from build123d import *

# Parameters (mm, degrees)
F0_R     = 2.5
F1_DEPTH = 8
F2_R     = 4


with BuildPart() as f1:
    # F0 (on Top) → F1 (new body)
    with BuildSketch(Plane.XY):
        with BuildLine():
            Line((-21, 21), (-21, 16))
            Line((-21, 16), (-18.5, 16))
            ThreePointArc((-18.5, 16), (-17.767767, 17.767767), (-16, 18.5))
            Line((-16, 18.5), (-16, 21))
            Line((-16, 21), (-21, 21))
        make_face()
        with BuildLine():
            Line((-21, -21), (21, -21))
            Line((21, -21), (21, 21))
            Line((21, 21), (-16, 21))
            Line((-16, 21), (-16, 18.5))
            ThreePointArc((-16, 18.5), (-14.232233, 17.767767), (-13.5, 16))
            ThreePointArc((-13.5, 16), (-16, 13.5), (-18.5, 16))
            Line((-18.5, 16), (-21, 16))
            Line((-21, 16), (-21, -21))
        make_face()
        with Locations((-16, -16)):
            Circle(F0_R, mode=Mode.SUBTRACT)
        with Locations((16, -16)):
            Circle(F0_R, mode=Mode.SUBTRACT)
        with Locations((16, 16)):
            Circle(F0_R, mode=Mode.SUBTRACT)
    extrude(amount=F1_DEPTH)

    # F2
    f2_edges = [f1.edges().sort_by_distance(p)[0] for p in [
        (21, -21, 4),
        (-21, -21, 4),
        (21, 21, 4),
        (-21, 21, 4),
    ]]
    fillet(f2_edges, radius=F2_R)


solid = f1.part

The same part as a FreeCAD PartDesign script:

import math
import FreeCAD as App
import Part
import Sketcher
Q = App.Units.Quantity


def edges_at(feature, points):
    """Names of the edges that pass closest to the given points."""
    edges = feature.Shape.Edges
    near = lambda p: min(range(len(edges)), key=lambda i: edges[i].distToShape(Part.Vertex(*p))[0])
    return sorted({f"Edge{near(p) + 1}" for p in points})


def add_polygon(sketch, points):
    """Adds a closed chain of lines whose ends are joined by coincident constraints."""
    first, n = sketch.GeometryCount, len(points)
    for a, b in zip(points, points[1:] + points[:1]):
        sketch.addGeometry(Part.LineSegment(App.Vector(*a, 0), App.Vector(*b, 0)), False)
    for i in range(n):
        sketch.addConstraint(Sketcher.Constraint("Coincident", first + i, 2, first + (i + 1) % n, 1))

doc = App.newDocument("Part")
body = doc.addObject("PartDesign::Body", "Body")

# Sketch on XY plane
sketch1 = body.newObject("Sketcher::SketchObject", "Sketch")
sketch1.AttachmentSupport = (doc.getObject("XY_Plane"), [""])
sketch1.MapMode = "FlatFace"
add_polygon(sketch1, [(-21, 21), (-21, -21), (21, -21), (21, 21)])  # lines 0-3
sketch1.addGeometry(Part.Circle(App.Vector(-16, -16, 0), App.Vector(0, 0, 1), 2.5), False)  # 4
sketch1.addGeometry(Part.Circle(App.Vector(16, -16, 0), App.Vector(0, 0, 1), 2.5), False)  # 5
sketch1.addGeometry(Part.ArcOfCircle(Part.Circle(App.Vector(-16, 16, 0), App.Vector(0, 0, 1), 2.5), math.radians(89.999996), math.radians(180.000004)), False)  # 6
sketch1.addGeometry(Part.ArcOfCircle(Part.Circle(App.Vector(-16, 16, 0), App.Vector(0, 0, 1), 2.5), math.radians(-0.000004), math.radians(90.000004)), False)  # 7
sketch1.addGeometry(Part.ArcOfCircle(Part.Circle(App.Vector(-16, 16, 0), App.Vector(0, 0, 1), 2.5), math.radians(180), math.radians(360)), False)  # 8
sketch1.addGeometry(Part.Circle(App.Vector(16, 16, 0), App.Vector(0, 0, 1), 2.5), False)  # 9
sketch1.addConstraint(Sketcher.Constraint("Tangent", 6, 1, 7, 2))
sketch1.addConstraint(Sketcher.Constraint("Tangent", 7, 1, 8, 2))
sketch1.addConstraint(Sketcher.Constraint("Tangent", 8, 1, 6, 2))
sketch1.addConstraint(Sketcher.Constraint("Vertical", 0))
sketch1.addConstraint(Sketcher.Constraint("Horizontal", 1))
sketch1.addConstraint(Sketcher.Constraint("Vertical", 2))
sketch1.addConstraint(Sketcher.Constraint("Horizontal", 3))
sketch1.addConstraint(Sketcher.Constraint("Equal", 4, 5))
sketch1.addConstraint(Sketcher.Constraint("Equal", 5, 6))
sketch1.addConstraint(Sketcher.Constraint("Equal", 8, 9))
sketch1.addConstraint(Sketcher.Constraint("Symmetric", 5, 3, 6, 3, -1, 1))
sketch1.addConstraint(Sketcher.Constraint("Symmetric", 4, 3, 9, 3, -1, 1))
sketch1.addConstraint(Sketcher.Constraint("Symmetric", 0, 2, 2, 2, -1, 1))
sketch1.addConstraint(Sketcher.Constraint("Symmetric", 4, 3, 5, 3, -2))
sketch1.addConstraint(Sketcher.Constraint("Horizontal", 9, 3, 7, 1))
sketch1.addConstraint(Sketcher.Constraint("Horizontal", 7, 1, 8, 1))
sketch1.addConstraint(Sketcher.Constraint("Vertical", 8, 3, 6, 1))
sketch1.addConstraint(Sketcher.Constraint("Equal", 3, 0))
sketch1.addConstraint(Sketcher.Constraint("Diameter", 4, Q("5 mm")))
sketch1.addConstraint(Sketcher.Constraint("DistanceX", 1, 1, 1, 2, Q("42 mm")))
sketch1.addConstraint(Sketcher.Constraint("DistanceX", 4, 3, -1, 1, Q("16 mm")))
sketch1.addConstraint(Sketcher.Constraint("DistanceY", 4, 3, -1, 1, Q("16 mm")))
pad1 = body.newObject("PartDesign::Pad", "Pad")
pad1.Profile = sketch1
pad1.Length = 8
doc.recompute()

fillet = body.newObject("PartDesign::Fillet", "Fillet")
fillet.Base = (pad1, edges_at(pad1, [
    (21, -21, 4),
    (-21, -21, 4),
    (21, 21, 4),
    (-21, 21, 4),
]))
fillet.Radius = 4

doc.recompute()
